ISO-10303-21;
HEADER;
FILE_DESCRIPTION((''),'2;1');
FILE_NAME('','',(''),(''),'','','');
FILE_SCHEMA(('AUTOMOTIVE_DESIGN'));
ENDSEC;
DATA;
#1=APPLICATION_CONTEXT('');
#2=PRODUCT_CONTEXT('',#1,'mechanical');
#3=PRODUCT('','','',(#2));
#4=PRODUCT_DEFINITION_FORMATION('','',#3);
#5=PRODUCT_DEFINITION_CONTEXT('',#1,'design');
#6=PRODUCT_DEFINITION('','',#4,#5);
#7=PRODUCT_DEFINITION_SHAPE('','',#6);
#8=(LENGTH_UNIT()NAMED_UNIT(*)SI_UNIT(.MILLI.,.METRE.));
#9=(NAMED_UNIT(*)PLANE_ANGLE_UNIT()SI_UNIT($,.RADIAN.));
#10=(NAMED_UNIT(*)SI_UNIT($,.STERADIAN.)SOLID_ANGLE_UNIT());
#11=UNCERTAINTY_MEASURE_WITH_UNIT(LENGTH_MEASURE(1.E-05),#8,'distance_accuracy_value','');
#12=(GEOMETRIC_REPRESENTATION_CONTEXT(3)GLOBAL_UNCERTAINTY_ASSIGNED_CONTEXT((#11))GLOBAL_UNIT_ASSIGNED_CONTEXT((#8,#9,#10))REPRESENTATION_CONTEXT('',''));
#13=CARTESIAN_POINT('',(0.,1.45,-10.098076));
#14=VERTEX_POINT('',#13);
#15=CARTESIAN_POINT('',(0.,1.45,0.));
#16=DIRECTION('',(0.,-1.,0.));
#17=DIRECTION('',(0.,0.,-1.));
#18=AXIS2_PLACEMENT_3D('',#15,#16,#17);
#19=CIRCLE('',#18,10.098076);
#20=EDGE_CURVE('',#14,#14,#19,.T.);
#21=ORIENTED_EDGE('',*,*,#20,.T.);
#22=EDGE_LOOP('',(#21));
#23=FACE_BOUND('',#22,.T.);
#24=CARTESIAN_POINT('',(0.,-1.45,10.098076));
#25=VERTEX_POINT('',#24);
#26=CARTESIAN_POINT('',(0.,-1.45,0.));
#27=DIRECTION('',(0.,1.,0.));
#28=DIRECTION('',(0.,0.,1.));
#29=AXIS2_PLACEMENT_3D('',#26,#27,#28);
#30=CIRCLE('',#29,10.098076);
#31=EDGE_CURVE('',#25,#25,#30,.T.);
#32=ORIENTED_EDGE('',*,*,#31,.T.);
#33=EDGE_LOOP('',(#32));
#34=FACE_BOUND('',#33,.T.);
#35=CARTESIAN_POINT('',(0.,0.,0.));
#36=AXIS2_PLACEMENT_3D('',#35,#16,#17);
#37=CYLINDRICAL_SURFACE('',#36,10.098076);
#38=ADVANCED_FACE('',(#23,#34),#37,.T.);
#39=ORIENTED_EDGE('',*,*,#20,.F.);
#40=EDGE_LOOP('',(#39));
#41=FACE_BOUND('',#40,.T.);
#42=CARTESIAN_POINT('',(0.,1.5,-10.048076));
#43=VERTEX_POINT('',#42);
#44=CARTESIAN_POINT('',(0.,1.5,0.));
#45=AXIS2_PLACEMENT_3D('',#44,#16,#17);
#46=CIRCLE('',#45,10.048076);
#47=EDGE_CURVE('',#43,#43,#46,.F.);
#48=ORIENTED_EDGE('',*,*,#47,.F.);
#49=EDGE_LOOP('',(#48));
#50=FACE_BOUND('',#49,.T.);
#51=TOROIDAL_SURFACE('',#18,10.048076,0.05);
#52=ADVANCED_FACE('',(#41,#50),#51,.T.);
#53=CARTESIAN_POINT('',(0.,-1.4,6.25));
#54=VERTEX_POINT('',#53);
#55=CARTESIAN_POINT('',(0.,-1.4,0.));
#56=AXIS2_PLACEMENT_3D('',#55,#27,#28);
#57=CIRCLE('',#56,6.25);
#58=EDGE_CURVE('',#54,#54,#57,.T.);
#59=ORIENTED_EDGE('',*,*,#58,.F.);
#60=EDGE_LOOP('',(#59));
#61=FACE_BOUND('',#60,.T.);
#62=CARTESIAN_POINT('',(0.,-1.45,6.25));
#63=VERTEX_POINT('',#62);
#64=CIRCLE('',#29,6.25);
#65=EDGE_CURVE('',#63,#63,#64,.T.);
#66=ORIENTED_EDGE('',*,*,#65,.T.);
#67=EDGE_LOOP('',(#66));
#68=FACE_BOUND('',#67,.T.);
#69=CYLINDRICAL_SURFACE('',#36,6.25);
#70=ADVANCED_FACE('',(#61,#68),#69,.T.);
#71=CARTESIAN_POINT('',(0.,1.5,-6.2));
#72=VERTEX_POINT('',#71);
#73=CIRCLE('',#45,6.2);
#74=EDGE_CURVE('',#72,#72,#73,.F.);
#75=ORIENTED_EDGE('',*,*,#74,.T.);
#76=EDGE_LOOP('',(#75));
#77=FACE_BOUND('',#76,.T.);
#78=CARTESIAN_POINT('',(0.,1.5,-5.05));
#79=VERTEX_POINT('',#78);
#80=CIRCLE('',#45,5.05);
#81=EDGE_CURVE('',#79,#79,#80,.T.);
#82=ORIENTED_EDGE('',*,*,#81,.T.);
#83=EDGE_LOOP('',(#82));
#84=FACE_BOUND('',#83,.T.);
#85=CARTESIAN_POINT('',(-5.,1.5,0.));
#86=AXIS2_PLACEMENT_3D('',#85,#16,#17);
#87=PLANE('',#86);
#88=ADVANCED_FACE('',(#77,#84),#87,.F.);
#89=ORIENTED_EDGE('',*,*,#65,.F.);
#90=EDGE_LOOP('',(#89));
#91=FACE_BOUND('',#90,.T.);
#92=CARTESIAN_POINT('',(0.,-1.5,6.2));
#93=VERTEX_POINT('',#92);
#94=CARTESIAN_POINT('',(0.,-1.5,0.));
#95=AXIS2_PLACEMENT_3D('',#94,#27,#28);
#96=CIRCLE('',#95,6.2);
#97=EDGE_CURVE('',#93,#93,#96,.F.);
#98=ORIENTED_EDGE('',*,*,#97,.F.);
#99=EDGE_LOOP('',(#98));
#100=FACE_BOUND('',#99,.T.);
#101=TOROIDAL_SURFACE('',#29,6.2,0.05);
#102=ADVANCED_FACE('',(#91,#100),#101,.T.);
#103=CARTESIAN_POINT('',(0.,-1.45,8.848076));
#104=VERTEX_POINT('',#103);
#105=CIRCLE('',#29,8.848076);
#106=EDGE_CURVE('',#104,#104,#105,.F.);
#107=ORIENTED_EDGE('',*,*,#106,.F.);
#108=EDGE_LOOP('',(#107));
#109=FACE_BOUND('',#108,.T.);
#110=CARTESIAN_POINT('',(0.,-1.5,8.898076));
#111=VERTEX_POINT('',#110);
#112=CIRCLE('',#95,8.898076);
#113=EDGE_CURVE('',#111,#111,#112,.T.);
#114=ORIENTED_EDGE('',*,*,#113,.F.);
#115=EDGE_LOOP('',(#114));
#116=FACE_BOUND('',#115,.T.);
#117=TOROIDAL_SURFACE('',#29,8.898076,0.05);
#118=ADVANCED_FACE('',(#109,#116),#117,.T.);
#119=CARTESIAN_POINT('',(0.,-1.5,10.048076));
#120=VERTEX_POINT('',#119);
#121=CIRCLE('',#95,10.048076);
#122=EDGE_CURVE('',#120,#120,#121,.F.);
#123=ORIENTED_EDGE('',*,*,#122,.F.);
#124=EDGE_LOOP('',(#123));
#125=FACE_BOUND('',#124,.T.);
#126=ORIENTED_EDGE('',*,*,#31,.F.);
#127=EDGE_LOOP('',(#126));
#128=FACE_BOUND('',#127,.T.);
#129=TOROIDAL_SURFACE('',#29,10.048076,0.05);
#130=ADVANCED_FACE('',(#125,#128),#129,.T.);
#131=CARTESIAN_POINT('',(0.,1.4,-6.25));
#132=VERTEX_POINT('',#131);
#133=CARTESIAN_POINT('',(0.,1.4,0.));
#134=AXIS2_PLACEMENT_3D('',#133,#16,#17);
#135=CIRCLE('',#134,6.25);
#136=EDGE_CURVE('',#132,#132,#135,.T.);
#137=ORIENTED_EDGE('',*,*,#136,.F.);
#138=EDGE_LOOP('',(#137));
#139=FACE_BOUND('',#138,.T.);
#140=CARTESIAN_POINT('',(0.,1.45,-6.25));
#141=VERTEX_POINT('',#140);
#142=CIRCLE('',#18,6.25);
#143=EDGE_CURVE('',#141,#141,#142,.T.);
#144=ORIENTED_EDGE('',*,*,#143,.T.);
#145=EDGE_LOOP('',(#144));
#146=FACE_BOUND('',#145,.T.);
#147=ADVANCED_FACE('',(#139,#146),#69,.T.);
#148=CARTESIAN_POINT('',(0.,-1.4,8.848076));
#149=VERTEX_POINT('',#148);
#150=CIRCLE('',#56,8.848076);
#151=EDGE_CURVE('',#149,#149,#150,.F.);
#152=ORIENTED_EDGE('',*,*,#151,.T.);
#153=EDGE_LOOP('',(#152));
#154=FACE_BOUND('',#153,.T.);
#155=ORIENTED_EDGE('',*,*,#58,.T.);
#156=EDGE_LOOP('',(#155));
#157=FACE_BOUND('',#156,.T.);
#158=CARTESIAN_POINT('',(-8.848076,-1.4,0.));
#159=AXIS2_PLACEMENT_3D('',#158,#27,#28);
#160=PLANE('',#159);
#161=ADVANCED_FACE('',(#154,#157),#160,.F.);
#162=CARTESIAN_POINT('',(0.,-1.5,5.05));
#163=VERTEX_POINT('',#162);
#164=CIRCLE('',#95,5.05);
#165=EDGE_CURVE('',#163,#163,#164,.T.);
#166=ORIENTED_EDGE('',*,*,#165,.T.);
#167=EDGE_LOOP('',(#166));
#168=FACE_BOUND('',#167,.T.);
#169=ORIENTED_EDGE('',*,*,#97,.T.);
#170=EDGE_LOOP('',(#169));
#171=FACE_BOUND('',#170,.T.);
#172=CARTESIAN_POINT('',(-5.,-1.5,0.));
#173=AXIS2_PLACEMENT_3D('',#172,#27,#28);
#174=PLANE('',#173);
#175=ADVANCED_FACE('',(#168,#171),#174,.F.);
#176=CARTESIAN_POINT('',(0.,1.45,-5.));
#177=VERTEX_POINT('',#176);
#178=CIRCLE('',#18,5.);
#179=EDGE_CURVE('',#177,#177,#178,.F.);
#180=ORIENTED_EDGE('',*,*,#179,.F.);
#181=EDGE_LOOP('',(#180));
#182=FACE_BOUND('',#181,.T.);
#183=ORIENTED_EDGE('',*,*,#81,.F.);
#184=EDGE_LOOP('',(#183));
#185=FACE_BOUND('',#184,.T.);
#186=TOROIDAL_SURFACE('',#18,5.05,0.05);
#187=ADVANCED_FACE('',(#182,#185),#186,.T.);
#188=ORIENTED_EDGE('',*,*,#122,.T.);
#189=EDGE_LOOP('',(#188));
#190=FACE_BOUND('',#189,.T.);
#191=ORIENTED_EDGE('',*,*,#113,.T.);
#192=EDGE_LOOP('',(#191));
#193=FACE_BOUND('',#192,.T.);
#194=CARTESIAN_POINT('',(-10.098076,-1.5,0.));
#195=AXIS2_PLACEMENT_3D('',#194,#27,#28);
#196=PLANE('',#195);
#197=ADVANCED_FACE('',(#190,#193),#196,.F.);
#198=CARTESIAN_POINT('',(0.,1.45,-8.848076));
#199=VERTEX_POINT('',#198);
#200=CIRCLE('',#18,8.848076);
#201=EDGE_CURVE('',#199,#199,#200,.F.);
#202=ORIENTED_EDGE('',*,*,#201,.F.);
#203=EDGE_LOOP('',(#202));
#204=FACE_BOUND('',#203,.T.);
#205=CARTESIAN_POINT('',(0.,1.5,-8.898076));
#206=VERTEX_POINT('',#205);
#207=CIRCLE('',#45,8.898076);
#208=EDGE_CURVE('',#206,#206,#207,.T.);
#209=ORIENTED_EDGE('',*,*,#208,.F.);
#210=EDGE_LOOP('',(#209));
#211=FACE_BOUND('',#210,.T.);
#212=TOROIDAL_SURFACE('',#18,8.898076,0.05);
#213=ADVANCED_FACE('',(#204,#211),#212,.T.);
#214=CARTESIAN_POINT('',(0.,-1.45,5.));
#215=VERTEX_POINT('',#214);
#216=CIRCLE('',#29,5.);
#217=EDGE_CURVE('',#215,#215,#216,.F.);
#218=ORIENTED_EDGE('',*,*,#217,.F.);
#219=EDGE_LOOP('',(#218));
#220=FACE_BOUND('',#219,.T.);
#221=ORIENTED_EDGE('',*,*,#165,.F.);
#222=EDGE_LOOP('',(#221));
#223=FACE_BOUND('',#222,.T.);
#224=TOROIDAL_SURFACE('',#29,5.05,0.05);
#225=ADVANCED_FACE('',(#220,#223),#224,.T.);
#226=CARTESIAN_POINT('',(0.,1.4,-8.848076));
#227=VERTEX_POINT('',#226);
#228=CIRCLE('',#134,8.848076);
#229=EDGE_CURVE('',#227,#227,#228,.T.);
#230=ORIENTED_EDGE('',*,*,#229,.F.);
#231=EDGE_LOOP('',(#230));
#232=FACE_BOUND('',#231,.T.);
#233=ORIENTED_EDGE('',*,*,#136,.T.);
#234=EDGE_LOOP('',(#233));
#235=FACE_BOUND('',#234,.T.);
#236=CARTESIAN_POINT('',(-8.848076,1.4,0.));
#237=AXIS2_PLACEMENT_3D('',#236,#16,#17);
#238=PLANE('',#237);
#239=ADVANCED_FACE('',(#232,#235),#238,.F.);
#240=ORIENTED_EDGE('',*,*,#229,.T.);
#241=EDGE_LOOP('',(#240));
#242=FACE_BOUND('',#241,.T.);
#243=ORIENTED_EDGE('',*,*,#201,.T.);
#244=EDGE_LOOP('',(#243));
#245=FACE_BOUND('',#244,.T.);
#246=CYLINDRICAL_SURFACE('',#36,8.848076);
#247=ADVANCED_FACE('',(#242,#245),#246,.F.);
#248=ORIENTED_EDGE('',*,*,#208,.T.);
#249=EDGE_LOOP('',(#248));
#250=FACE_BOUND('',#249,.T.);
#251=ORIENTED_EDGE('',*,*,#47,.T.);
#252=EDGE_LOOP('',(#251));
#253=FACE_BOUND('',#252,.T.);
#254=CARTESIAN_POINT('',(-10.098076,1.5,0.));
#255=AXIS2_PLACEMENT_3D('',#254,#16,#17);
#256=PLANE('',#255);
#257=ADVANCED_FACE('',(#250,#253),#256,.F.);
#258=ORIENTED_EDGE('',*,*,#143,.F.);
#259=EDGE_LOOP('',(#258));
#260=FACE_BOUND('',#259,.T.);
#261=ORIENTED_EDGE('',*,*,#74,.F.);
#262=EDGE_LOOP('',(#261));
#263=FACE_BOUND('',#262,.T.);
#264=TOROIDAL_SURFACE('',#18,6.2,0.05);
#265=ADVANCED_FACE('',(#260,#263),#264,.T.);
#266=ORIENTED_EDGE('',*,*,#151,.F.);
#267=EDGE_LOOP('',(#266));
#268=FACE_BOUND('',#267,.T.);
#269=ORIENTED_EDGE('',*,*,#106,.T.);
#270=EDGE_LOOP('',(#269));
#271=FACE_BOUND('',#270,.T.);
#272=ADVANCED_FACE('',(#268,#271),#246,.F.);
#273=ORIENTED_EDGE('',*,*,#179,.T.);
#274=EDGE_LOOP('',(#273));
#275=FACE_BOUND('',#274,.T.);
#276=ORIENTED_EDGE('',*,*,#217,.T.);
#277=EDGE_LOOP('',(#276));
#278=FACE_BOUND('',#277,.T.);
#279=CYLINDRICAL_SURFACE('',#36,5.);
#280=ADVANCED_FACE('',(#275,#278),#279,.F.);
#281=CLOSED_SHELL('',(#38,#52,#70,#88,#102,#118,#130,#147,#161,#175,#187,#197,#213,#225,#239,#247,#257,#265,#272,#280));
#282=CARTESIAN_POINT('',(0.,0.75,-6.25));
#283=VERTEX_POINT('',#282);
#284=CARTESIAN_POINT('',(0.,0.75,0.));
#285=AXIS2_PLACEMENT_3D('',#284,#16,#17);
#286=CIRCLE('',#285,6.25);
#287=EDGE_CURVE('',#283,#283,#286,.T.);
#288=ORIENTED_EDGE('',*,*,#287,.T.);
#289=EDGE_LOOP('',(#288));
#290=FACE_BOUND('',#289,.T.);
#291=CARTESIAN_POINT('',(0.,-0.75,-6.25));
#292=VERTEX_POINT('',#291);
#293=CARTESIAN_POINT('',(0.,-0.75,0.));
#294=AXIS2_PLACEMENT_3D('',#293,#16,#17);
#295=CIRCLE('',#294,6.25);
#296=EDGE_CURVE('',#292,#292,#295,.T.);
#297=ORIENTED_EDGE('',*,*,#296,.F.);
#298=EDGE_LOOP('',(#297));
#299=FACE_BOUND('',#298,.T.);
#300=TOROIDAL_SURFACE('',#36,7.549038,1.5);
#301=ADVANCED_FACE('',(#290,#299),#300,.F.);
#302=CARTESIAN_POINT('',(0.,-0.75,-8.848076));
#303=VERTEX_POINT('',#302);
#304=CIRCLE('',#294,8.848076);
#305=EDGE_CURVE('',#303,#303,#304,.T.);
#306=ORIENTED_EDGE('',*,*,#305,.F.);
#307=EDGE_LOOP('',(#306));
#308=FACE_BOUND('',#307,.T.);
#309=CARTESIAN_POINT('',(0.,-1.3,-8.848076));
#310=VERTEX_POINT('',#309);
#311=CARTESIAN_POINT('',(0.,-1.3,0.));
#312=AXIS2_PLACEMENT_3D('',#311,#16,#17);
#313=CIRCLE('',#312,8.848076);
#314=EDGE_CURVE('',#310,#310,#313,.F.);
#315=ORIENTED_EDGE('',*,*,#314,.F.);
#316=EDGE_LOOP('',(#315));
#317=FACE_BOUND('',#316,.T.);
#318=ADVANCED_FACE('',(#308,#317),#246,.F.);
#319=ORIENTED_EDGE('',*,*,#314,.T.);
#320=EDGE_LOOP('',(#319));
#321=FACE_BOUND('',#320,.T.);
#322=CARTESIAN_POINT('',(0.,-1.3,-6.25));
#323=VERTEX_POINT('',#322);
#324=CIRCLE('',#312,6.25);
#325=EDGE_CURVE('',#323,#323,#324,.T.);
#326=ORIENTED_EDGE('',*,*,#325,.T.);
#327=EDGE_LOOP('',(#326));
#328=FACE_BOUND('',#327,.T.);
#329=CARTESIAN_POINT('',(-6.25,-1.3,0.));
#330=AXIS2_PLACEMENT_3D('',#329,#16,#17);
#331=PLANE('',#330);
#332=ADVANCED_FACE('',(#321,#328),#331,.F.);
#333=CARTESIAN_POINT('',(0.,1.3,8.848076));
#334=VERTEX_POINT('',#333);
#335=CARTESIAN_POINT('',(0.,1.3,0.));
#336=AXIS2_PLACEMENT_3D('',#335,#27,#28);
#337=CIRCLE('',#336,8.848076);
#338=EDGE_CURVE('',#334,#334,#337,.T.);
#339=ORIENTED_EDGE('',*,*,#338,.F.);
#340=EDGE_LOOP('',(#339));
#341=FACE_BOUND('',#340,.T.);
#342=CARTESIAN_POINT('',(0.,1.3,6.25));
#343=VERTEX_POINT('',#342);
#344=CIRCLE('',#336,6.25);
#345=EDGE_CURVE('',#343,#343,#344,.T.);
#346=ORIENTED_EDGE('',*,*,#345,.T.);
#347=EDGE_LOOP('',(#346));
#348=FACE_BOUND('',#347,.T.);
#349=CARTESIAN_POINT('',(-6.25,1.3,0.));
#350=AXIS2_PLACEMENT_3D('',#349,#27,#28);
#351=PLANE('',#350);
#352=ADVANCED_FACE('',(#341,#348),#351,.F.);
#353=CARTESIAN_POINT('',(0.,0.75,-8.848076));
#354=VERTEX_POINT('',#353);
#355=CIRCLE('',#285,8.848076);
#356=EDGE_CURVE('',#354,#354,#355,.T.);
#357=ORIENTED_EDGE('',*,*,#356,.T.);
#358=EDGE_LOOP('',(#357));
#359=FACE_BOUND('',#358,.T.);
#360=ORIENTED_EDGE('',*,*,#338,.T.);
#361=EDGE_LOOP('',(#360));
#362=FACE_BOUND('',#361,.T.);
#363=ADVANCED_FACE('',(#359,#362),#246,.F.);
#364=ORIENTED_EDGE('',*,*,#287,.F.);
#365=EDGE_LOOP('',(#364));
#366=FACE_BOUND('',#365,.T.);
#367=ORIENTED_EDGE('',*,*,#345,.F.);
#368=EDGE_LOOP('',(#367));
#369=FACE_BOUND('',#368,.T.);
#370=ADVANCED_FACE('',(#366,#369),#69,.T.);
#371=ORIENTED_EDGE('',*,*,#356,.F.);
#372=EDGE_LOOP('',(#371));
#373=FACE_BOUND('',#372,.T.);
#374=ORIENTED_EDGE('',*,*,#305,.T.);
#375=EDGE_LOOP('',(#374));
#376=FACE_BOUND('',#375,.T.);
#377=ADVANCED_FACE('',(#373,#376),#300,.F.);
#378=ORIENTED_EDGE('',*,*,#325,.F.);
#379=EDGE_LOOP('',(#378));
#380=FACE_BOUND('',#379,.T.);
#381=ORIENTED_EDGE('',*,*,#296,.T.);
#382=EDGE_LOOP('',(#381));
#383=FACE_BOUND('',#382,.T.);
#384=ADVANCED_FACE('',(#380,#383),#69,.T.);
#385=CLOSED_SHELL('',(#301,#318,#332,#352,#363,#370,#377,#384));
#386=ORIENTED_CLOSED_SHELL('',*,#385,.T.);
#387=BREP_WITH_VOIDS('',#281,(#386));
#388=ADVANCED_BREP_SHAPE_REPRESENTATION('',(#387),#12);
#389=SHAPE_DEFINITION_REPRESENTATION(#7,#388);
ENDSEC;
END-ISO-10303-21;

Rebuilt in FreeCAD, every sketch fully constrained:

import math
import FreeCAD as App
import Part
import Sketcher

V = App.Vector
Q = App.Units.Quantity


def edges_at(feature, points):
    """Names of the edges that pass closest to the given points."""
    edges = feature.Shape.Edges
    near = lambda p: min(range(len(edges)), key=lambda i: edges[i].distToShape(Part.Vertex(*p))[0])
    return sorted({f"Edge{near(p) + 1}" for p in points})


def add_polygon(sketch, points):
    """Adds a closed chain of lines whose ends are joined by coincident constraints."""
    first, n = sketch.GeometryCount, len(points)
    for a, b in zip(points, points[1:] + points[:1]):
        sketch.addGeometry(Part.LineSegment(App.Vector(*a, 0), App.Vector(*b, 0)), False)
    for i in range(n):
        sketch.addConstraint(Sketcher.Constraint("Coincident", first + i, 2, first + (i + 1) % n, 1))

doc = App.newDocument("Part")
body = doc.addObject("PartDesign::Body", "Body")
body.AllowCompound = True

# Sketch on XY plane
sketch1 = body.newObject("Sketcher::SketchObject", "Sketch")
sketch1.AttachmentSupport = (doc.getObject("XY_Plane"), [""])
sketch1.MapMode = "FlatFace"
sketch1.addGeometry([
    Part.LineSegment(V(-5, -1.5, 0), V(-5, 1.5, 0)),  # 0
    Part.LineSegment(V(-5, 1.5, 0), V(-6.2, 1.5, 0)),  # 1
    Part.LineSegment(V(-6.2, 1.5, 0), V(-6.2, 0.8, 0)),  # 2
    Part.ArcOfCircle(Part.Circle(V(-7.5, 0, 0), V(0, 0, 1), 1.5), math.radians(-30), math.radians(30)),  # 3
    Part.LineSegment(V(-6.2, -0.8, 0), V(-6.2, -1.5, 0)),  # 4
    Part.LineSegment(V(-6.2, -1.5, 0), V(-5, -1.5, 0)),  # 5
    Part.LineSegment(V(-8.8, 0.8, 0), V(-8.8, 1.5, 0)),  # 6
    Part.LineSegment(V(-8.8, 1.5, 0), V(-10.1, 1.5, 0)),  # 7
    Part.LineSegment(V(-10.1, 1.5, 0), V(-10.1, -1.5, 0)),  # 8
    Part.LineSegment(V(-10.1, -1.5, 0), V(-8.8, -1.5, 0)),  # 9
    Part.LineSegment(V(-8.8, -1.5, 0), V(-8.8, -0.8, 0)),  # 10
    Part.ArcOfCircle(Part.Circle(V(-7.5, 0, 0), V(0, 0, 1), 1.5), math.radians(150), math.radians(210)),  # 11
], False)
sketch1.addConstraint([
    Sketcher.Constraint("Coincident", 0, 2, 1, 1),
    Sketcher.Constraint("Coincident", 1, 2, 2, 1),
    Sketcher.Constraint("Coincident", 2, 2, 3, 2),
    Sketcher.Constraint("Coincident", 3, 1, 4, 1),
    Sketcher.Constraint("Coincident", 4, 2, 5, 1),
    Sketcher.Constraint("Coincident", 5, 2, 0, 1),
    Sketcher.Constraint("Coincident", 6, 2, 7, 1),
    Sketcher.Constraint("Coincident", 7, 2, 8, 1),
    Sketcher.Constraint("Coincident", 8, 2, 9, 1),
    Sketcher.Constraint("Coincident", 9, 2, 10, 1),
    Sketcher.Constraint("Coincident", 10, 2, 11, 2),
    Sketcher.Constraint("Coincident", 11, 1, 6, 1),
    Sketcher.Constraint("Vertical", 0),
    Sketcher.Constraint("Horizontal", 1),
    Sketcher.Constraint("Vertical", 2),
    Sketcher.Constraint("Vertical", 4),
    Sketcher.Constraint("Horizontal", 5),
    Sketcher.Constraint("Vertical", 6),
    Sketcher.Constraint("Horizontal", 7),
    Sketcher.Constraint("Vertical", 8),
    Sketcher.Constraint("Horizontal", 9),
    Sketcher.Constraint("Vertical", 10),
    Sketcher.Constraint("Coincident", 11, 3, 3, 3),
    Sketcher.Constraint("Equal", 3, 11),
    Sketcher.Constraint("Symmetric", 2, 2, 3, 1, -1),
    Sketcher.Constraint("Symmetric", 6, 2, 9, 2, -1),
    Sketcher.Constraint("Horizontal", 1, 2, 6, 2),
    Sketcher.Constraint("Horizontal", 5, 2, 8, 2),
    Sketcher.Constraint("Horizontal", 3, 1, 10, 2),
    Sketcher.Constraint("Equal", 5, 7),
    Sketcher.Constraint("Radius", 3, Q("1.5 mm")),
    Sketcher.Constraint("DistanceY", 0, 1, 0, 2, Q("3 mm")),
    Sketcher.Constraint("DistanceX", 0, 2, -1, 1, Q("5 mm")),
    Sketcher.Constraint("DistanceX", 1, 2, 1, 1, Q("1.25 mm")),
    Sketcher.Constraint("DistanceY", 2, 2, 2, 1, Q("0.75 mm")),
])
revolution = body.newObject("PartDesign::Revolution", "Revolution")
revolution.Profile = sketch1
revolution.ReferenceAxis = (sketch1, ["V_Axis"])
revolution.Angle = 360
doc.recompute()

fillet = body.newObject("PartDesign::Fillet", "Fillet")
fillet.Base = (revolution, edges_at(revolution, [
    (0, 1.5, 8.848),
    (0, -1.5, 8.848),
    (0, -1.5, 10.098),
    (0, 1.5, 10.098),
]))
fillet.Radius = 0.05
doc.recompute()

fillet2 = body.newObject("PartDesign::Fillet", "Fillet001")
fillet2.Base = (fillet, edges_at(fillet, [
    (0, 1.5, 6.25),
    (0, -1.5, 6.25),
    (0, -1.5, 5),
    (0, 1.5, 5),
]))
fillet2.Radius = 0.05

# Sketch on XY plane
sketch2 = body.newObject("Sketcher::SketchObject", "Sketch001")
sketch2.AttachmentSupport = (doc.getObject("XY_Plane"), [""])
sketch2.MapMode = "FlatFace"
add_polygon(sketch2, [(-8.85, 1.4), (-8.85, 1.3), (-6.25, 1.3), (-6.25, 1.4)])  # lines 0-3
add_polygon(sketch2, [(-8.85, -1.3), (-8.85, -1.4), (-6.25, -1.4), (-6.25, -1.3)])  # lines 4-7
sketch2.addConstraint([
    Sketcher.Constraint("Vertical", 0),
    Sketcher.Constraint("Horizontal", 1),
    Sketcher.Constraint("Vertical", 2),
    Sketcher.Constraint("Horizontal", 3),
    Sketcher.Constraint("Vertical", 4),
    Sketcher.Constraint("Horizontal", 5),
    Sketcher.Constraint("Vertical", 6),
    Sketcher.Constraint("Horizontal", 7),
    Sketcher.Constraint("Symmetric", 3, 2, 4, 2, -1),
    Sketcher.Constraint("Symmetric", 1, 2, 6, 2, -1),
    Sketcher.Constraint("DistanceY", 0, 2, 0, 1, Q("0.1 mm")),
    Sketcher.Constraint("DistanceY", -1, 1, 0, 2, Q("1.3 mm")),
    Sketcher.Constraint("DistanceX", 1, 2, -1, 1, Q("6.25 mm")),
    Sketcher.Constraint("DistanceX", 1, 1, 1, 2, Q("2.598076 mm")),
])
revolution2 = body.newObject("PartDesign::Revolution", "Revolution001")
revolution2.Profile = sketch2
revolution2.ReferenceAxis = (sketch2, ["V_Axis"])
revolution2.Angle = 360

doc.recompute()
